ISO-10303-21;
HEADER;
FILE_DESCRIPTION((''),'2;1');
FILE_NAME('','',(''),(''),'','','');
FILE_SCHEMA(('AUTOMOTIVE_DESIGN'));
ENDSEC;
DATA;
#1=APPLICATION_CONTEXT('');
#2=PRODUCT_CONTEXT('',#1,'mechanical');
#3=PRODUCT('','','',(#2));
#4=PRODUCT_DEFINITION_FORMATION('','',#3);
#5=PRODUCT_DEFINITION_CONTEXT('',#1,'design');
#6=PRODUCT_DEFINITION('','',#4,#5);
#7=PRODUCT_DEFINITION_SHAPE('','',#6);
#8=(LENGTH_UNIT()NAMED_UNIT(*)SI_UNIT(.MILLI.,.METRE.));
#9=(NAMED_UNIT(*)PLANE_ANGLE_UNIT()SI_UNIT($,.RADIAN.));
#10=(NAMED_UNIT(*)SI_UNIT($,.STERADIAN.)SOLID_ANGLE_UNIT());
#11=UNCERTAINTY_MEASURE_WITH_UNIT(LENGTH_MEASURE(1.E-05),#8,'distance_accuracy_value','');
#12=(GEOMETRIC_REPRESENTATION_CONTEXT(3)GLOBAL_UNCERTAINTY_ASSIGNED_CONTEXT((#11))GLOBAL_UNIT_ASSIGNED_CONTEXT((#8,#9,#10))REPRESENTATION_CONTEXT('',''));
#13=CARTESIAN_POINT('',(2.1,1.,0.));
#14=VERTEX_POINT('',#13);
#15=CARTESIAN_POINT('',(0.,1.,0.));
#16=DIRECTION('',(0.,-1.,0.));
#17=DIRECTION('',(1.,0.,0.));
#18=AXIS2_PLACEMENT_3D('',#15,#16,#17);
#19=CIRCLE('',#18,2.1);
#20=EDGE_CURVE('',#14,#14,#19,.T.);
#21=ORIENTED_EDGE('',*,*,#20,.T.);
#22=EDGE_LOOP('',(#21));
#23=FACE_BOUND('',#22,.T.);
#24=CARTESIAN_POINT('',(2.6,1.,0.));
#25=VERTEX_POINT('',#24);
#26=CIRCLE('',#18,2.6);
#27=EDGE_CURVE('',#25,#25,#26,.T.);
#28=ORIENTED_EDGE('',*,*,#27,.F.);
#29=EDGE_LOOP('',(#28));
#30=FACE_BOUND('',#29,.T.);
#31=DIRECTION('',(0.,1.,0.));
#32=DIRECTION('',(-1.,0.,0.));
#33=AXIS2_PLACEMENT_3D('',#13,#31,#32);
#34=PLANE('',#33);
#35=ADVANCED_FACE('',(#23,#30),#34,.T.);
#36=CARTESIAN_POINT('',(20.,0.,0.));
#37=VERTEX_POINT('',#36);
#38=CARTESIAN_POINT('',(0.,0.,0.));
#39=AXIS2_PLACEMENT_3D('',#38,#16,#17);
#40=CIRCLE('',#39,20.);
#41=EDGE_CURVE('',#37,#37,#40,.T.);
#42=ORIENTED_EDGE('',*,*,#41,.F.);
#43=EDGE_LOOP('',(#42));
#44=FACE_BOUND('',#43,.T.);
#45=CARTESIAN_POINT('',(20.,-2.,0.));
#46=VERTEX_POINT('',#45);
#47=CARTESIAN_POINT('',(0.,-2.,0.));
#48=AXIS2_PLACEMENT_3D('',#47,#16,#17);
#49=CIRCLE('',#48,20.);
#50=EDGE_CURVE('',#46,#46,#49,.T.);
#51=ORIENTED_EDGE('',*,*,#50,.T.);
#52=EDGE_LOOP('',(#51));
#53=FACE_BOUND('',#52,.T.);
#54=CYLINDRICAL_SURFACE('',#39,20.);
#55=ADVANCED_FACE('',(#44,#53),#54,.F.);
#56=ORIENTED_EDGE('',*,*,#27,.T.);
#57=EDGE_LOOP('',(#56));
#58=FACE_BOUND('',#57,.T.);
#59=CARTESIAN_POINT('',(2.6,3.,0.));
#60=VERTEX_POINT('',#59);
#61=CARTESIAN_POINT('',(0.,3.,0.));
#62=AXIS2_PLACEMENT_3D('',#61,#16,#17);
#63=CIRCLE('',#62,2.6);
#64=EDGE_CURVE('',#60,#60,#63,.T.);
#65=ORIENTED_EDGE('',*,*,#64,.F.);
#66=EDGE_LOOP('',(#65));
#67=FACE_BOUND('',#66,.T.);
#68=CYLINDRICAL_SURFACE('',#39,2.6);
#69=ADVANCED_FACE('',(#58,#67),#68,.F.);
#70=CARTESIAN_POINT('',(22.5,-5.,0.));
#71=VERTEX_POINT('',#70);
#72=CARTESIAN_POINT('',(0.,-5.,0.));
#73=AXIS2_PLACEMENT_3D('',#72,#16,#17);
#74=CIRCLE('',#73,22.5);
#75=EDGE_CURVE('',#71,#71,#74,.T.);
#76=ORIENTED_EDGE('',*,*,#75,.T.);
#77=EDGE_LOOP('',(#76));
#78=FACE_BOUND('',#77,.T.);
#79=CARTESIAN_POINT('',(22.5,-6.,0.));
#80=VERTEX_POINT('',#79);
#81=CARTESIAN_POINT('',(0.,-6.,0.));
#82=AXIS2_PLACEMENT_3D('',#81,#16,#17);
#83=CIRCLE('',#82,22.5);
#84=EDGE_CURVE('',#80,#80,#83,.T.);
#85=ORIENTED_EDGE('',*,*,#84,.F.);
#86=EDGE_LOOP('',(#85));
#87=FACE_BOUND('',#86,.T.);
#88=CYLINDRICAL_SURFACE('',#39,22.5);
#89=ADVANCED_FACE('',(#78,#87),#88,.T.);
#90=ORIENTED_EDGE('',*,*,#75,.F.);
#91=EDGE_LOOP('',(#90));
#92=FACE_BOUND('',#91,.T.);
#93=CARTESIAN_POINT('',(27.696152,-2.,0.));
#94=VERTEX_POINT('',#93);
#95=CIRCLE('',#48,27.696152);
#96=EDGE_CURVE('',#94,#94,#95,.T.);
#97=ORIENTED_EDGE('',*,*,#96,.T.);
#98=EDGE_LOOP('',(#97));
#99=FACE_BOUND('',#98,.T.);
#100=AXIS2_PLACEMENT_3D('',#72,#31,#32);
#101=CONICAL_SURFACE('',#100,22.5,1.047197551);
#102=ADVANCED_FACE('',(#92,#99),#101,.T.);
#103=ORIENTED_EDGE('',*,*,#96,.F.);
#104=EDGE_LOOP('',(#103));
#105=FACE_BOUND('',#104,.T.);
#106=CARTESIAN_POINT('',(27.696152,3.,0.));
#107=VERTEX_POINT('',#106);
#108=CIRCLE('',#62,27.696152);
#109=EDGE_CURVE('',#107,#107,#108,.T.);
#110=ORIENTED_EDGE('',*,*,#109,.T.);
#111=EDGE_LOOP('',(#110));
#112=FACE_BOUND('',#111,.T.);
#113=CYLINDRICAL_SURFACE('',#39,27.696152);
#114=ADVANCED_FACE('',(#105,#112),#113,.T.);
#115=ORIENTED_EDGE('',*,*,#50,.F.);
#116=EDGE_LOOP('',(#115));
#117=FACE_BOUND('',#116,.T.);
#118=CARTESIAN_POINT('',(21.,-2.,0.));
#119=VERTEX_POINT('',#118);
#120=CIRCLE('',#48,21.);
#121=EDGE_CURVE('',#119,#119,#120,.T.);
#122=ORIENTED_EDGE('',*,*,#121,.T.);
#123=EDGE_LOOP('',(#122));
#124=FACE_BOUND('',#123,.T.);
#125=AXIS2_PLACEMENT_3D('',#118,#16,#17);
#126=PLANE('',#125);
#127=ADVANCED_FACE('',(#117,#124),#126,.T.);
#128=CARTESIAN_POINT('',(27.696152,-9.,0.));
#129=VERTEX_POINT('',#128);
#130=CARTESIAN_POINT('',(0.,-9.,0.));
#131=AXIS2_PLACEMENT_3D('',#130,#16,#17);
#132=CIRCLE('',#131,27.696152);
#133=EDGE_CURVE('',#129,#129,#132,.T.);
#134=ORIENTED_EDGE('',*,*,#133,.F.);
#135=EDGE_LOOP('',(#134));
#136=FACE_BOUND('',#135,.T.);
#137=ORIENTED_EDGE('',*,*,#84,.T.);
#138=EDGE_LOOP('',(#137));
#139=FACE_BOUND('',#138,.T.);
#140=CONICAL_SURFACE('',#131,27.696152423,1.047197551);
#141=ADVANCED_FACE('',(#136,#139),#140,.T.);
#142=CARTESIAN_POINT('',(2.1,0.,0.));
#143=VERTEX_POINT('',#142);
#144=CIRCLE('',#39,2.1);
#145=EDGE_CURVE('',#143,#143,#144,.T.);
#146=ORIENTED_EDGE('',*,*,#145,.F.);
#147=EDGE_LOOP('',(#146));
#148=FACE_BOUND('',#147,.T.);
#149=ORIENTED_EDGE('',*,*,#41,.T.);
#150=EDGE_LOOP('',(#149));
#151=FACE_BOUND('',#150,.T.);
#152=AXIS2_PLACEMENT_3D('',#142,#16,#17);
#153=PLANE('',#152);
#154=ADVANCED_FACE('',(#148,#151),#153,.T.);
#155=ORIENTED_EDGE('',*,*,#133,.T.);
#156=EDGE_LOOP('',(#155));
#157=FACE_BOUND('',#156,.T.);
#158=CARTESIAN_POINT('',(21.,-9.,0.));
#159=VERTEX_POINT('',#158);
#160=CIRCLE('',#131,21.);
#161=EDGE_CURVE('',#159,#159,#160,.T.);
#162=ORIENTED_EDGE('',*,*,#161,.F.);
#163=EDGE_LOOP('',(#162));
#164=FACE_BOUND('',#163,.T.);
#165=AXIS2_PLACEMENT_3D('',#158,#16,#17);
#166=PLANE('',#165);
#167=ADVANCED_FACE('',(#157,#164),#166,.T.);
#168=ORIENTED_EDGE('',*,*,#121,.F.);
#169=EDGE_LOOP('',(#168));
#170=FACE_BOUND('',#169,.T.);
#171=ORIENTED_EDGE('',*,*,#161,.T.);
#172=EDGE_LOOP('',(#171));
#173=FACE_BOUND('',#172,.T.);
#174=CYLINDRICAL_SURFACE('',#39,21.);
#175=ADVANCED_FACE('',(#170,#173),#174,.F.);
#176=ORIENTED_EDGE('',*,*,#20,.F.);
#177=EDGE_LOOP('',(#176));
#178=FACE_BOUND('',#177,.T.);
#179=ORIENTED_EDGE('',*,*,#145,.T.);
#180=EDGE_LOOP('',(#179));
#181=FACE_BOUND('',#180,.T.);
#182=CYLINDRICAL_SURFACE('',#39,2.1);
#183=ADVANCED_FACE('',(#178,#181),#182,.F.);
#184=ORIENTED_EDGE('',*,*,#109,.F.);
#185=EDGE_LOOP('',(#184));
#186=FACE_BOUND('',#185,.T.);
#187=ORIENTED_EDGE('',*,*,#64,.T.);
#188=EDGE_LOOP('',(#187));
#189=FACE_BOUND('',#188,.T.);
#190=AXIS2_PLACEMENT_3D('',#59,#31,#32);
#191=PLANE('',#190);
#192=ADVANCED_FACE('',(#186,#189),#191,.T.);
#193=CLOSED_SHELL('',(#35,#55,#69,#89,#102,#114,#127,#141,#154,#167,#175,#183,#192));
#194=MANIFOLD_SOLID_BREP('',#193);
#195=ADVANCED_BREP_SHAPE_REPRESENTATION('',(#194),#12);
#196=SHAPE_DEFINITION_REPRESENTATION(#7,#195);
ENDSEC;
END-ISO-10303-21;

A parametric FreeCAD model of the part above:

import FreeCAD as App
import Part
import Sketcher
from FreeCAD import Vector
Q = App.Units.Quantity


def add_polygon(sketch, points):
    """Adds a closed chain of lines whose ends are joined by coincident constraints."""
    first, n = sketch.GeometryCount, len(points)
    for a, b in zip(points, points[1:] + points[:1]):
        sketch.addGeometry(Part.LineSegment(App.Vector(*a, 0), App.Vector(*b, 0)), False)
    for i in range(n):
        sketch.addConstraint(Sketcher.Constraint("Coincident", first + i, 2, first + (i + 1) % n, 1))

doc = App.newDocument("Part")
body = doc.addObject("PartDesign::Body", "Body")

# Sketch on XY plane
sketch1 = body.newObject("Sketcher::SketchObject", "Sketch")
sketch1.AttachmentSupport = (doc.getObject("XY_Plane"), [""])
sketch1.MapMode = "FlatFace"
add_polygon(sketch1, [(2.6, 1), (2.1, 1), (2.1, 0), (20, 0), (20, -2), (21, -2), (21, -9), (27.7, -9), (22.5, -6), (22.5, -5), (27.7, -2), (27.7, 3), (2.6, 3)])  # lines 0-12
sketch1.addConstraint(Sketcher.Constraint("Horizontal", 0))
sketch1.addConstraint(Sketcher.Constraint("Vertical", 1))
sketch1.addConstraint(Sketcher.Constraint("Horizontal", 2))
sketch1.addConstraint(Sketcher.Constraint("Vertical", 3))
sketch1.addConstraint(Sketcher.Constraint("Horizontal", 4))
sketch1.addConstraint(Sketcher.Constraint("Vertical", 5))
sketch1.addConstraint(Sketcher.Constraint("Horizontal", 6))
sketch1.addConstraint(Sketcher.Constraint("Vertical", 8))
sketch1.addConstraint(Sketcher.Constraint("Vertical", 10))
sketch1.addConstraint(Sketcher.Constraint("Horizontal", 11))
sketch1.addConstraint(Sketcher.Constraint("Vertical", 12))
sketch1.addConstraint(Sketcher.Constraint("PointOnObject", 1, 2, -1))
sketch1.addConstraint(Sketcher.Constraint("Horizontal", 4, 2, 9, 2))
sketch1.addConstraint(Sketcher.Constraint("Vertical", 6, 2, 9, 2))
sketch1.addConstraint(Sketcher.Constraint("Equal", 4, 1))
sketch1.addConstraint(Sketcher.Constraint("Equal", 1, 8))
sketch1.addConstraint(Sketcher.Constraint("Equal", 3, 12))
sketch1.addConstraint(Sketcher.Constraint("Equal", 7, 9))
sketch1.addConstraint(Sketcher.Constraint("DistanceX", 4, 1, 4, 2, Q("1 mm")))
sketch1.addConstraint(Sketcher.Constraint("DistanceY", 3, 2, 3, 1, Q("2 mm")))
sketch1.addConstraint(Sketcher.Constraint("DistanceY", 5, 2, 5, 1, Q("7 mm")))
sketch1.addConstraint(Sketcher.Constraint("Angle", 7, Q("150 deg")))
sketch1.addConstraint(Sketcher.Constraint("DistanceX", 0, 2, 0, 1, Q("0.5 mm")))
sketch1.addConstraint(Sketcher.Constraint("DistanceX", 2, 1, 2, 2, Q("17.9 mm")))
sketch1.addConstraint(Sketcher.Constraint("DistanceX", -1, 1, 2, 2, Q("20 mm")))
sketch1.addConstraint(Sketcher.Constraint("DistanceX", -1, 1, 7, 2, Q("22.5 mm")))
revolution = body.newObject("PartDesign::Revolution", "Revolution")
revolution.Profile = sketch1
revolution.ReferenceAxis = (sketch1, ["V_Axis"])
revolution.Angle = 360

doc.recompute()
